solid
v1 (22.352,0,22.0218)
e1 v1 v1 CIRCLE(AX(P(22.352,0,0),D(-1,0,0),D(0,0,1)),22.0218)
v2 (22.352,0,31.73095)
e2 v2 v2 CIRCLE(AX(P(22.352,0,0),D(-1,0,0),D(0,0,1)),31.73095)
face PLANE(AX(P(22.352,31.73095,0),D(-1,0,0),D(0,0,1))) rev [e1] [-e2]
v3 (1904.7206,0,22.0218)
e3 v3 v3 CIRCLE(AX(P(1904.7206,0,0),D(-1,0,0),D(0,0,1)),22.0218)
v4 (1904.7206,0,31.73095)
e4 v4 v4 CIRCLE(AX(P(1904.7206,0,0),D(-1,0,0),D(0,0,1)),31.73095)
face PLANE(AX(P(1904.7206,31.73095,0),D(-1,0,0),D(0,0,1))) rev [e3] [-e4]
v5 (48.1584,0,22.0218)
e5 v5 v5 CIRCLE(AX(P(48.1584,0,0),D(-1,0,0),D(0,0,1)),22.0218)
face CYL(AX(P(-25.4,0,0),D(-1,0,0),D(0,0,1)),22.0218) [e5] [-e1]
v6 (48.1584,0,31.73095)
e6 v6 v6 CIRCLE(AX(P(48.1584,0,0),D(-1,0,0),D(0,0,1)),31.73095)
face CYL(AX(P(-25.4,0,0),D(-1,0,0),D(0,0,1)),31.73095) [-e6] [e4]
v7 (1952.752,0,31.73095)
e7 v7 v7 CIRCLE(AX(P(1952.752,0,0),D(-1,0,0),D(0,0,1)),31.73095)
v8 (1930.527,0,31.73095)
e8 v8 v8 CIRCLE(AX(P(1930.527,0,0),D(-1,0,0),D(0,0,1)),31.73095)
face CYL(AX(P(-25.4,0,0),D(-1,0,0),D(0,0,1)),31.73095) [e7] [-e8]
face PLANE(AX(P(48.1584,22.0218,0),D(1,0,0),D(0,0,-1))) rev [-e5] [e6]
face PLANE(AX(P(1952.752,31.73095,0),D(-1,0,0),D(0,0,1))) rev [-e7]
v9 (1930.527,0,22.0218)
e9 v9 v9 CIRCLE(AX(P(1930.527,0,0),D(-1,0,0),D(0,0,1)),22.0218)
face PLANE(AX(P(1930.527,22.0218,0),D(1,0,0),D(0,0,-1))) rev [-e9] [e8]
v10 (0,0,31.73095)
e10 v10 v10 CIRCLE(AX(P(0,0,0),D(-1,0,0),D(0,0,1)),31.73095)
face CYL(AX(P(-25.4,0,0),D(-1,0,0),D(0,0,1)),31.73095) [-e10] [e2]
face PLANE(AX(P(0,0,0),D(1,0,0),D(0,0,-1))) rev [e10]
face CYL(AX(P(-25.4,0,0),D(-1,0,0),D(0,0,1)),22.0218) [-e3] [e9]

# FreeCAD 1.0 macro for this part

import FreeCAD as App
import Part
import Sketcher
from FreeCAD import Vector
Q = App.Units.Quantity

doc = App.newDocument("Part")
body = doc.addObject("PartDesign::Body", "Body")

# Sketch on XY plane
sketch1 = body.newObject("Sketcher::SketchObject", "Sketch")
sketch1.AttachmentSupport = (doc.getObject("XY_Plane"), [""])
sketch1.MapMode = "FlatFace"
sketch1.addGeometry([
    Part.LineSegment(Vector(0, 31.73095, 0), Vector(0, 0, 0)),  # 0
    Part.LineSegment(Vector(0, 0, 0), Vector(1952.752, 0, 0)),  # 1
    Part.LineSegment(Vector(1952.752, 0, 0), Vector(1952.752, 31.73095, 0)),  # 2
    Part.LineSegment(Vector(1952.752, 31.73095, 0), Vector(1930.527, 31.73095, 0)),  # 3
    Part.LineSegment(Vector(1930.527, 31.73095, 0), Vector(1930.527, 22.0218, 0)),  # 4
    Part.LineSegment(Vector(1930.527, 22.0218, 0), Vector(1904.7206, 22.0218, 0)),  # 5
    Part.LineSegment(Vector(1904.7206, 22.0218, 0), Vector(1904.7206, 31.73095, 0)),  # 6
    Part.LineSegment(Vector(1904.7206, 31.73095, 0), Vector(48.1584, 31.73095, 0)),  # 7
    Part.LineSegment(Vector(48.1584, 31.73095, 0), Vector(48.1584, 22.0218, 0)),  # 8
    Part.LineSegment(Vector(48.1584, 22.0218, 0), Vector(22.352, 22.0218, 0)),  # 9
    Part.LineSegment(Vector(22.352, 22.0218, 0), Vector(22.352, 31.73095, 0)),  # 10
    Part.LineSegment(Vector(22.352, 31.73095, 0), Vector(0, 31.73095, 0)),  # 11
], False)
sketch1.addConstraint([
    Sketcher.Constraint("Coincident", 0, 2, 1, 1),
    Sketcher.Constraint("Coincident", 1, 2, 2, 1),
    Sketcher.Constraint("Coincident", 2, 2, 3, 1),
    Sketcher.Constraint("Coincident", 3, 2, 4, 1),
    Sketcher.Constraint("Coincident", 4, 2, 5, 1),
    Sketcher.Constraint("Coincident", 5, 2, 6, 1),
    Sketcher.Constraint("Coincident", 6, 2, 7, 1),
    Sketcher.Constraint("Coincident", 7, 2, 8, 1),
    Sketcher.Constraint("Coincident", 8, 2, 9, 1),
    Sketcher.Constraint("Coincident", 9, 2, 10, 1),
    Sketcher.Constraint("Coincident", 10, 2, 11, 1),
    Sketcher.Constraint("Coincident", 11, 2, 0, 1),
    Sketcher.Constraint("Vertical", 0),
    Sketcher.Constraint("Horizontal", 1),
    Sketcher.Constraint("Vertical", 2),
    Sketcher.Constraint("Horizontal", 3),
    Sketcher.Constraint("Vertical", 4),
    Sketcher.Constraint("Horizontal", 5),
    Sketcher.Constraint("Vertical", 6),
    Sketcher.Constraint("Horizontal", 7),
    Sketcher.Constraint("Vertical", 8),
    Sketcher.Constraint("Horizontal", 9),
    Sketcher.Constraint("Vertical", 10),
    Sketcher.Constraint("Horizontal", 11),
    Sketcher.Constraint("Coincident", 0, 2, -1, 1),
    Sketcher.Constraint("Horizontal", 3, 2, 6, 2),
    Sketcher.Constraint("Horizontal", 5, 2, 8, 2),
    Sketcher.Constraint("Horizontal", 7, 2, 10, 2),
    Sketcher.Constraint("Equal", 5, 9),
    Sketcher.Constraint("DistanceX", 1, 1, 1, 2, Q("76.88 in")),
    Sketcher.Constraint("DistanceX", 11, 2, 11, 1, Q("0.88 in")),
    Sketcher.Constraint("DistanceX", 3, 2, 3, 1, Q("0.875 in")),
    Sketcher.Constraint("DistanceX", 5, 2, 5, 1, Q("1.016 in")),
    Sketcher.Constraint("DistanceY", -1, 1, 4, 2, Q("0.867 in")),
    Sketcher.Constraint("DistanceY", 0, 2, 0, 1, 31.73095),
])
revolution = body.newObject("PartDesign::Revolution", "Revolution")
revolution.Profile = sketch1
revolution.ReferenceAxis = (sketch1, ["H_Axis"])
revolution.Angle = 360

doc.recompute()
